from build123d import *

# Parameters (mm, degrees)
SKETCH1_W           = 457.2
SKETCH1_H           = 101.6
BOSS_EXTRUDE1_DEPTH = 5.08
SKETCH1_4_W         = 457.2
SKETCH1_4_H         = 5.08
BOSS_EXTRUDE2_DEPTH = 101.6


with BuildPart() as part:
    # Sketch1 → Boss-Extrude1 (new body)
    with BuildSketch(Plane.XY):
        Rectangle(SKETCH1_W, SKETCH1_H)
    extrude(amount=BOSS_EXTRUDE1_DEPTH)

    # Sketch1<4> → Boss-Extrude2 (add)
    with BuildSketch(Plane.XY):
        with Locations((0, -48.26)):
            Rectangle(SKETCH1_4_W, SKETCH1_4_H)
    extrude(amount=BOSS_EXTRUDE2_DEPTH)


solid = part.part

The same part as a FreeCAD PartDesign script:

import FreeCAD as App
import Part
import Sketcher
from FreeCAD import Vector
Q = App.Units.Quantity


def add_polygon(sketch, points):
    """Adds a closed chain of lines whose ends are joined by coincident constraints."""
    first, n = sketch.GeometryCount, len(points)
    for a, b in zip(points, points[1:] + points[:1]):
        sketch.addGeometry(Part.LineSegment(App.Vector(*a, 0), App.Vector(*b, 0)), False)
    for i in range(n):
        sketch.addConstraint(Sketcher.Constraint("Coincident", first + i, 2, first + (i + 1) % n, 1))

doc = App.newDocument("Part")
body = doc.addObject("PartDesign::Body", "Body")

# Sketch on XY plane
sketch1 = body.newObject("Sketcher::SketchObject", "Sketch")
sketch1.AttachmentSupport = (doc.getObject("XY_Plane"), [""])
sketch1.MapMode = "FlatFace"
add_polygon(sketch1, [(-229, 51), (-229, -51), (229, -51), (229, 51)])  # lines 0-3
sketch1.addConstraint(Sketcher.Constraint("Vertical", 0))
sketch1.addConstraint(Sketcher.Constraint("Horizontal", 1))
sketch1.addConstraint(Sketcher.Constraint("Vertical", 2))
sketch1.addConstraint(Sketcher.Constraint("Horizontal", 3))
sketch1.addConstraint(Sketcher.Constraint("Symmetric", 0, 2, 2, 2, -1, 1))
sketch1.addConstraint(Sketcher.Constraint("DistanceX", 1, 1, 1, 2, Q("18 in")))
sketch1.addConstraint(Sketcher.Constraint("DistanceY", 0, 2, 0, 1, Q("4 in")))
pad1 = body.newObject("PartDesign::Pad", "Pad")
pad1.Profile = sketch1
pad1.Length = Q("0.2 in")

# Sketch on XY plane
sketch2 = body.newObject("Sketcher::SketchObject", "Sketch001")
sketch2.AttachmentSupport = (doc.getObject("XY_Plane"), [""])
sketch2.MapMode = "FlatFace"
add_polygon(sketch2, [(-229, -46), (-229, -51), (229, -51), (229, -46)])  # lines 0-3
sketch2.addConstraint(Sketcher.Constraint("Vertical", 0))
sketch2.addConstraint(Sketcher.Constraint("Horizontal", 1))
sketch2.addConstraint(Sketcher.Constraint("Vertical", 2))
sketch2.addConstraint(Sketcher.Constraint("Horizontal", 3))
sketch2.addConstraint(Sketcher.Constraint("DistanceX", 1, 1, 1, 2, Q("18 in")))
sketch2.addConstraint(Sketcher.Constraint("DistanceY", 0, 2, 0, 1, Q("0.2 in")))
sketch2.addConstraint(Sketcher.Constraint("DistanceX", 0, 2, -1, 1, Q("9 in")))
sketch2.addConstraint(Sketcher.Constraint("DistanceY", 0, 2, -1, 1, Q("2 in")))
pad2 = body.newObject("PartDesign::Pad", "Pad001")
pad2.Profile = sketch2
pad2.Length = Q("4 in")

doc.recompute()
